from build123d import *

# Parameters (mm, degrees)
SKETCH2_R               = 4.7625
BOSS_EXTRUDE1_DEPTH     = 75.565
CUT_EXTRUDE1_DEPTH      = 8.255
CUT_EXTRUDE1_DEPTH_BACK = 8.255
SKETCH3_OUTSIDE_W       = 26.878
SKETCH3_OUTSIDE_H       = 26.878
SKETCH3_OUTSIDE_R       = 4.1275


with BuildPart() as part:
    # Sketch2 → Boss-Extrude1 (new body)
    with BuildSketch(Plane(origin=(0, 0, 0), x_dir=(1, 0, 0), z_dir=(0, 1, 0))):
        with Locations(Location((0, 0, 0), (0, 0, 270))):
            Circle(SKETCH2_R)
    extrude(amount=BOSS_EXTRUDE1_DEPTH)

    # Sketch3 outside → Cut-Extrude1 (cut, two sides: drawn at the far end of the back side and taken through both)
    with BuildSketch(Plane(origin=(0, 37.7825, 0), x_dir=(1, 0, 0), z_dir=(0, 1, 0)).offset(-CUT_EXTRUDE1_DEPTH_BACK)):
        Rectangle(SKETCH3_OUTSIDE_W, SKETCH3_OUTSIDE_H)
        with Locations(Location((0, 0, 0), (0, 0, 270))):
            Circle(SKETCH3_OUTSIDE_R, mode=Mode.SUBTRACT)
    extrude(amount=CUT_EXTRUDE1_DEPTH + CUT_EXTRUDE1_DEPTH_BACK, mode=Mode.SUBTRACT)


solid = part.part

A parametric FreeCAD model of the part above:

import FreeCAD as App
import Part
import Sketcher
Q = App.Units.Quantity

doc = App.newDocument("Part")
body = doc.addObject("PartDesign::Body", "Body")

sketch1 = body.newObject("Sketcher::SketchObject", "Sketch")
sketch1.AttachmentSupport = (doc.getObject("XZ_Plane"), [""])
sketch1.MapMode = "FlatFace"
sketch1.addGeometry(Part.Circle(App.Vector(0, 0, 0), App.Vector(0, 0, 1), 4.7625), False)
sketch1.addConstraint([
    Sketcher.Constraint("Coincident", 0, 3, -1, 1),
    Sketcher.Constraint("Diameter", 0, Q("0.375 in")),
])
pad1 = body.newObject("PartDesign::Pad", "Pad")
pad1.Profile = sketch1
pad1.Length = Q("2.975 in")
pad1.Reversed = True

sketch2 = body.newObject("Sketcher::SketchObject", "Sketch001")
sketch2.AttachmentSupport = (doc.getObject("XZ_Plane"), [""])
sketch2.MapMode = "FlatFace"
sketch2.AttachmentOffset = App.Placement(App.Vector(0, 0, -1.4875 * 25.4), App.Rotation())
sketch2.addGeometry([
    Part.LineSegment(App.Vector(-13.439, -13.439, 0), App.Vector(-13.439, 13.439, 0)),
    Part.LineSegment(App.Vector(-13.439, 13.439, 0), App.Vector(13.439, 13.439, 0)),
    Part.LineSegment(App.Vector(13.439, 13.439, 0), App.Vector(13.439, -13.439, 0)),
    Part.LineSegment(App.Vector(13.439, -13.439, 0), App.Vector(-13.439, -13.439, 0)),
    Part.Circle(App.Vector(0, 0, 0), App.Vector(0, 0, 1), 4.1275),
], False)
sketch2.addConstraint([
    Sketcher.Constraint("Coincident", 0, 2, 1, 1),
    Sketcher.Constraint("Coincident", 1, 2, 2, 1),
    Sketcher.Constraint("Coincident", 2, 2, 3, 1),
    Sketcher.Constraint("Coincident", 3, 2, 0, 1),
    Sketcher.Constraint("Vertical", 0),
    Sketcher.Constraint("Horizontal", 1),
    Sketcher.Constraint("Vertical", 2),
    Sketcher.Constraint("Horizontal", 3),
    Sketcher.Constraint("Coincident", 4, 3, -1, 1),
    Sketcher.Constraint("Symmetric", 0, 2, 2, 2, -1, 1),
    Sketcher.Constraint("Equal", 3, 0),
    Sketcher.Constraint("Diameter", 4, Q("0.325 in")),
    Sketcher.Constraint("DistanceX", 1, 1, 1, 2, 26.878),
])
pocket1 = body.newObject("PartDesign::Pocket", "Pocket")
pocket1.Profile = sketch2
pocket1.Type = "TwoLengths"
pocket1.Length = Q("0.325 in")
pocket1.Length2 = Q("0.325 in")

doc.recompute()
